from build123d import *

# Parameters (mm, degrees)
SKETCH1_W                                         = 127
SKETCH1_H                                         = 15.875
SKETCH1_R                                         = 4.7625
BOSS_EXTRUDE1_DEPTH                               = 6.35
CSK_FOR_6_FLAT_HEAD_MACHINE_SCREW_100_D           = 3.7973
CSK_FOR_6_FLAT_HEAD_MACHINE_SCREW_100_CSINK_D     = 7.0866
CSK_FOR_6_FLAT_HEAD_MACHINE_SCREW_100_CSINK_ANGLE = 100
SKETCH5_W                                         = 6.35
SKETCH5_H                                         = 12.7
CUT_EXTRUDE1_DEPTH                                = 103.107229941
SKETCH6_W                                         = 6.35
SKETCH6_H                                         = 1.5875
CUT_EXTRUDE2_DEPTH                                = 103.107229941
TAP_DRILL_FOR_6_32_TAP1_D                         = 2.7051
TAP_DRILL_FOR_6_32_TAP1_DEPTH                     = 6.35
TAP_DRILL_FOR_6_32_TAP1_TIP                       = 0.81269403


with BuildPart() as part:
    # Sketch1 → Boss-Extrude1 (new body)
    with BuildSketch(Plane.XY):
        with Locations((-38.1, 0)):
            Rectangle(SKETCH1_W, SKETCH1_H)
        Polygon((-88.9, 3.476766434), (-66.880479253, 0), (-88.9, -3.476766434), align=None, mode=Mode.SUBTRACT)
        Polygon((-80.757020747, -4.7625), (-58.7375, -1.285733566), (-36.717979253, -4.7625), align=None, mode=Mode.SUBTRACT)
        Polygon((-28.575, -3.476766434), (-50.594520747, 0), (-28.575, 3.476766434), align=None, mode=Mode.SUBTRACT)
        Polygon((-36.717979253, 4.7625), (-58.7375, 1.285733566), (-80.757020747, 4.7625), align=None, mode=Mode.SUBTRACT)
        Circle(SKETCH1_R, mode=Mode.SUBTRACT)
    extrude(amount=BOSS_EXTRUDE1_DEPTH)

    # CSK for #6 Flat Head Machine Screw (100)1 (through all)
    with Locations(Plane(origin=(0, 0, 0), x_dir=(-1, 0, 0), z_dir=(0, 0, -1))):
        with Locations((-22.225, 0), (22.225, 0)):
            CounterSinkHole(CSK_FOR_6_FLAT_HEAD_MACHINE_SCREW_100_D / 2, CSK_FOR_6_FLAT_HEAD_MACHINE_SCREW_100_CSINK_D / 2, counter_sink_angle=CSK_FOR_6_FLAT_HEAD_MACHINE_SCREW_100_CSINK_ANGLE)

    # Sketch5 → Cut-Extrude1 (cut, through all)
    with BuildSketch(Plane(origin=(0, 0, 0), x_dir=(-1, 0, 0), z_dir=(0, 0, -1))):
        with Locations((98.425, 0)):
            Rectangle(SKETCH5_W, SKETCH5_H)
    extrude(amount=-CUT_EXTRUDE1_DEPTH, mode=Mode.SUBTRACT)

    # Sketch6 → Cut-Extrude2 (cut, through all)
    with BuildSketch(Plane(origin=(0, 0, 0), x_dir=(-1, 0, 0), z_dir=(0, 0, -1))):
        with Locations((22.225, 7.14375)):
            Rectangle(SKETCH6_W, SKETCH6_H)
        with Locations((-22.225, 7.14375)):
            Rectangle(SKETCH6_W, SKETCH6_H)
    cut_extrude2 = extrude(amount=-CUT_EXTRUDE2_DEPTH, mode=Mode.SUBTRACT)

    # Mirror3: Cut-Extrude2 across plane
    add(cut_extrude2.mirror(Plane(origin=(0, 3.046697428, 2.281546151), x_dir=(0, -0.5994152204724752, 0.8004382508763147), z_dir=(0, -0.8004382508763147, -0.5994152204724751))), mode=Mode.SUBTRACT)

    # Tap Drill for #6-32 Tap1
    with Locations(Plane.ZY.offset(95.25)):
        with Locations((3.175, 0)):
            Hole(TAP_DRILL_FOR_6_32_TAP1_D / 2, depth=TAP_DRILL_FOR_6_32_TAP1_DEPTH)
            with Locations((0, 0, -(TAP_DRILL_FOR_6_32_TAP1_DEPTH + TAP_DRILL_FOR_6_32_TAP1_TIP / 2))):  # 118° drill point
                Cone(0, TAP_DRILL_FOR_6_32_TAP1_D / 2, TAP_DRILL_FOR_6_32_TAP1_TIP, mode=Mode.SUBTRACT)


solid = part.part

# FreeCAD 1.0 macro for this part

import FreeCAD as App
import Part
import Sketcher

V = App.Vector
Q = App.Units.Quantity

doc = App.newDocument("Part")
params = doc.addObject("Spreadsheet::Sheet", "Params")
for row, (alias, value) in enumerate([
    ("sketch1_width", "5 in"),
    ("sketch1_diameter", "0.375 in"),
    ("sketch1_height", "0.625 in"),
    ("pad1_length", "0.25 in"),
    ("hole_diameter", "0.1495 in"),
    ("hole_csink_diameter", "0.279 in"),
    ("sketch3_height", "0.5 in"),
    ("sketch3_width", "0.25 in"),
    ("sketch4_width", "0.25 in"),
    ("sketch4_height", "0.0625 in"),
    ("hole2_diameter", "0.1065 in"),
    ("hole2_depth", "0.25 in"),
], start=1):
    params.set(f"A{row}", alias)
    params.set(f"B{row}", "=" + value)
    params.setAlias(f"B{row}", alias)

body = doc.addObject("PartDesign::Body", "Body")

sketch1 = body.newObject("Sketcher::SketchObject", "Sketch")
sketch1.AttachmentSupport = (doc.getObject("XY_Plane"), [""])
sketch1.MapMode = "FlatFace"
sketch1.addGeometry(Part.LineSegment(V(-101.6, 7.9, 0), V(-101.6, -7.9, 0)), False)
sketch1.addGeometry(Part.LineSegment(V(-101.6, -7.9, 0), V(25.4, -7.9, 0)), False)
sketch1.addGeometry(Part.LineSegment(V(25.4, -7.9, 0), V(25.4, 7.9, 0)), False)
sketch1.addGeometry(Part.LineSegment(V(25.4, 7.9, 0), V(-101.6, 7.9, 0)), False)
sketch1.addGeometry(Part.LineSegment(V(-36.7, -4.8, 0), V(-80.8, -4.8, 0)), False)
sketch1.addGeometry(Part.LineSegment(V(-80.8, -4.8, 0), V(-58.7, -1.3, 0)), False)
sketch1.addGeometry(Part.LineSegment(V(-58.7, -1.3, 0), V(-36.7, -4.8, 0)), False)
sketch1.addGeometry(Part.LineSegment(V(-88.9, -3.5, 0), V(-88.9, 3.5, 0)), False)
sketch1.addGeometry(Part.LineSegment(V(-88.9, 3.5, 0), V(-66.9, 0, 0)), False)
sketch1.addGeometry(Part.LineSegment(V(-66.9, 0, 0), V(-88.9, -3.5, 0)), False)
sketch1.addGeometry(Part.LineSegment(V(-80.8, 4.8, 0), V(-36.7, 4.8, 0)), False)
sketch1.addGeometry(Part.LineSegment(V(-36.7, 4.8, 0), V(-58.7, 1.3, 0)), False)
sketch1.addGeometry(Part.LineSegment(V(-58.7, 1.3, 0), V(-80.8, 4.8, 0)), False)
sketch1.addGeometry(Part.LineSegment(V(-28.6, 3.5, 0), V(-28.6, -3.5, 0)), False)
sketch1.addGeometry(Part.LineSegment(V(-28.6, -3.5, 0), V(-50.6, 0, 0)), False)
sketch1.addGeometry(Part.LineSegment(V(-50.6, 0, 0), V(-28.6, 3.5, 0)), False)
sketch1.addGeometry(Part.Circle(V(0, 0, 0), V(0, 0, 1), 4.8), False)
sketch1.addConstraint(Sketcher.Constraint("Coincident", 0, 2, 1, 1))
sketch1.addConstraint(Sketcher.Constraint("Coincident", 1, 2, 2, 1))
sketch1.addConstraint(Sketcher.Constraint("Coincident", 2, 2, 3, 1))
sketch1.addConstraint(Sketcher.Constraint("Coincident", 3, 2, 0, 1))
sketch1.addConstraint(Sketcher.Constraint("Coincident", 4, 2, 5, 1))
sketch1.addConstraint(Sketcher.Constraint("Coincident", 5, 2, 6, 1))
sketch1.addConstraint(Sketcher.Constraint("Coincident", 6, 2, 4, 1))
sketch1.addConstraint(Sketcher.Constraint("Coincident", 7, 2, 8, 1))
sketch1.addConstraint(Sketcher.Constraint("Coincident", 8, 2, 9, 1))
sketch1.addConstraint(Sketcher.Constraint("Coincident", 9, 2, 7, 1))
sketch1.addConstraint(Sketcher.Constraint("Coincident", 10, 2, 11, 1))
sketch1.addConstraint(Sketcher.Constraint("Coincident", 11, 2, 12, 1))
sketch1.addConstraint(Sketcher.Constraint("Coincident", 12, 2, 10, 1))
sketch1.addConstraint(Sketcher.Constraint("Coincident", 13, 2, 14, 1))
sketch1.addConstraint(Sketcher.Constraint("Coincident", 14, 2, 15, 1))
sketch1.addConstraint(Sketcher.Constraint("Coincident", 15, 2, 13, 1))
sketch1.addConstraint(Sketcher.Constraint("Vertical", 0))
sketch1.addConstraint(Sketcher.Constraint("Horizontal", 1))
sketch1.addConstraint(Sketcher.Constraint("Vertical", 2))
sketch1.addConstraint(Sketcher.Constraint("Horizontal", 3))
sketch1.addConstraint(Sketcher.Constraint("Horizontal", 4))
sketch1.addConstraint(Sketcher.Constraint("Vertical", 7))
sketch1.addConstraint(Sketcher.Constraint("Horizontal", 10))
sketch1.addConstraint(Sketcher.Constraint("Vertical", 13))
sketch1.addConstraint(Sketcher.Constraint("Coincident", 16, 3, -1, 1))
sketch1.addConstraint(Sketcher.Constraint("Symmetric", 6, 2, 10, 2, -1))
sketch1.addConstraint(Sketcher.Constraint("Symmetric", 5, 2, 11, 2, -1))
sketch1.addConstraint(Sketcher.Constraint("PointOnObject", 8, 2, -1))
sketch1.addConstraint(Sketcher.Constraint("PointOnObject", 14, 2, -1))
sketch1.addConstraint(Sketcher.Constraint("Parallel", 6, 8))
sketch1.addConstraint(Sketcher.Constraint("Parallel", 5, 9))
sketch1.addConstraint(Sketcher.Constraint("Parallel", 9, 11))
sketch1.addConstraint(Sketcher.Constraint("Parallel", 8, 12))
sketch1.addConstraint(Sketcher.Constraint("Parallel", 12, 14))
sketch1.addConstraint(Sketcher.Constraint("Parallel", 11, 15))
sketch1.addConstraint(Sketcher.Constraint("Horizontal", 9, 2, 13, 2))
sketch1.addConstraint(Sketcher.Constraint("Equal", 6, 8))
sketch1.addConstraint(Sketcher.Constraint("DistanceX", 1, 1, 1, 2, Q("5 in")))
sketch1.addConstraint(Sketcher.Constraint("Diameter", 16, Q("0.375 in")))
sketch1.addConstraint(Sketcher.Constraint("DistanceX", 0, 2, -1, 1, Q("4 in")))
sketch1.addConstraint(Sketcher.Constraint("DistanceX", 7, 2, -1, 1, Q("3.5 in")))
sketch1.addConstraint(Sketcher.Constraint("DistanceY", 4, 2, 3, 2, Q("0.5 in")))
sketch1.addConstraint(Sketcher.Constraint("DistanceY", 0, 2, 0, 1, Q("0.625 in")))
sketch1.addConstraint(Sketcher.Constraint("DistanceY", 0, 2, -1, 1, Q("0.3125 in")))
sketch1.addConstraint(Sketcher.Constraint("DistanceX", 5, 2, -1, 1, Q("2.3125 in")))
sketch1.addConstraint(Sketcher.Constraint("DistanceX", 13, 2, -1, 1, Q("1.125 in")))
sketch1.addConstraint(Sketcher.Constraint("DistanceX", 4, 2, 4, 1, Q("44.039041 mm")))
sketch1.addConstraint(Sketcher.Constraint("DistanceY", 7, 1, 7, 2, Q("6.953533 mm")))
sketch1.setExpression("Constraints[37]", "Params.sketch1_width")
sketch1.setExpression("Constraints[38]", "Params.sketch1_diameter")
sketch1.setExpression("Constraints[42]", "Params.sketch1_height")
pad1 = body.newObject("PartDesign::Pad", "Pad")
pad1.Profile = sketch1
pad1.setExpression("Length", "Params.pad1_length")

sketch2 = body.newObject("Sketcher::SketchObject", "Sketch001")
sketch2.AttachmentSupport = (doc.getObject("XY_Plane"), [""])
sketch2.MapMode = "FlatFace"
sketch2.addGeometry(Part.Circle(V(22.2, 0, 0), V(0, 0, 1), 1.9), False)
sketch2.addGeometry(Part.Circle(V(-22.2, 0, 0), V(0, 0, 1), 1.9), False)
sketch2.addConstraint(Sketcher.Constraint("Equal", 0, 1))
sketch2.addConstraint(Sketcher.Constraint("Symmetric", 0, 3, 1, 3, -1, 1))
sketch2.addConstraint(Sketcher.Constraint("PointOnObject", 0, 3, -1))
sketch2.addConstraint(Sketcher.Constraint("Diameter", 0, Q("0.1495 in")))
sketch2.addConstraint(Sketcher.Constraint("DistanceX", 1, 3, 0, 3, Q("1.75 in")))
doc.recompute()
hole = body.newObject("PartDesign::Hole", "Hole")
hole.Profile = sketch2
hole.ThreadType = "None"
hole.setExpression("Diameter", "Params.hole_diameter")
hole.DepthType = "ThroughAll"
hole.HoleCutType = "Countersink"
hole.setExpression("HoleCutDiameter", "Params.hole_csink_diameter")
hole.HoleCutCountersinkAngle = 100
hole.Reversed = True

sketch3 = body.newObject("Sketcher::SketchObject", "Sketch002")
sketch3.AttachmentSupport = (doc.getObject("XY_Plane"), [""])
sketch3.MapMode = "FlatFace"
sketch3.addGeometry(Part.LineSegment(V(-95, 6, 0), V(-95, -6, 0)), False)
sketch3.addGeometry(Part.LineSegment(V(-95, -6, 0), V(-102, -6, 0)), False)
sketch3.addGeometry(Part.LineSegment(V(-102, -6, 0), V(-102, 6, 0)), False)
sketch3.addGeometry(Part.LineSegment(V(-102, 6, 0), V(-95, 6, 0)), False)
sketch3.addConstraint(Sketcher.Constraint("Coincident", 0, 2, 1, 1))
sketch3.addConstraint(Sketcher.Constraint("Coincident", 1, 2, 2, 1))
sketch3.addConstraint(Sketcher.Constraint("Coincident", 2, 2, 3, 1))
sketch3.addConstraint(Sketcher.Constraint("Coincident", 3, 2, 0, 1))
sketch3.addConstraint(Sketcher.Constraint("Vertical", 0))
sketch3.addConstraint(Sketcher.Constraint("Horizontal", 1))
sketch3.addConstraint(Sketcher.Constraint("Vertical", 2))
sketch3.addConstraint(Sketcher.Constraint("Horizontal", 3))
sketch3.addConstraint(Sketcher.Constraint("DistanceY", 0, 2, 0, 1, Q("0.5 in")))
sketch3.addConstraint(Sketcher.Constraint("DistanceX", 1, 2, -1, 1, Q("4 in")))
sketch3.addConstraint(Sketcher.Constraint("DistanceX", 1, 2, 1, 1, Q("0.25 in")))
sketch3.addConstraint(Sketcher.Constraint("DistanceY", 0, 2, -1, 1, Q("0.25 in")))
sketch3.setExpression("Constraints[8]", "Params.sketch3_height")
sketch3.setExpression("Constraints[10]", "Params.sketch3_width")
pocket1 = body.newObject("PartDesign::Pocket", "Pocket")
pocket1.Profile = sketch3
pocket1.Type = "ThroughAll"
pocket1.Reversed = True

sketch4 = body.newObject("Sketcher::SketchObject", "Sketch003")
sketch4.AttachmentSupport = (doc.getObject("XY_Plane"), [""])
sketch4.MapMode = "FlatFace"
sketch4.addGeometry(Part.LineSegment(V(-19.1, 7.9, 0), V(-19.1, 6.3, 0)), False)
sketch4.addGeometry(Part.LineSegment(V(-19.1, 6.3, 0), V(-25.4, 6.3, 0)), False)
sketch4.addGeometry(Part.LineSegment(V(-25.4, 6.3, 0), V(-25.4, 7.9, 0)), False)
sketch4.addGeometry(Part.LineSegment(V(-25.4, 7.9, 0), V(-19.1, 7.9, 0)), False)
sketch4.addGeometry(Part.LineSegment(V(25.4, 7.9, 0), V(25.4, 6.3, 0)), False)
sketch4.addGeometry(Part.LineSegment(V(25.4, 6.3, 0), V(19.1, 6.3, 0)), False)
sketch4.addGeometry(Part.LineSegment(V(19.1, 6.3, 0), V(19.1, 7.9, 0)), False)
sketch4.addGeometry(Part.LineSegment(V(19.1, 7.9, 0), V(25.4, 7.9, 0)), False)
sketch4.addConstraint(Sketcher.Constraint("Coincident", 0, 2, 1, 1))
sketch4.addConstraint(Sketcher.Constraint("Coincident", 1, 2, 2, 1))
sketch4.addConstraint(Sketcher.Constraint("Coincident", 2, 2, 3, 1))
sketch4.addConstraint(Sketcher.Constraint("Coincident", 3, 2, 0, 1))
sketch4.addConstraint(Sketcher.Constraint("Coincident", 4, 2, 5, 1))
sketch4.addConstraint(Sketcher.Constraint("Coincident", 5, 2, 6, 1))
sketch4.addConstraint(Sketcher.Constraint("Coincident", 6, 2, 7, 1))
sketch4.addConstraint(Sketcher.Constraint("Coincident", 7, 2, 4, 1))
sketch4.addConstraint(Sketcher.Constraint("Vertical", 0))
sketch4.addConstraint(Sketcher.Constraint("Horizontal", 1))
sketch4.addConstraint(Sketcher.Constraint("Vertical", 2))
sketch4.addConstraint(Sketcher.Constraint("Horizontal", 3))
sketch4.addConstraint(Sketcher.Constraint("Vertical", 4))
sketch4.addConstraint(Sketcher.Constraint("Horizontal", 5))
sketch4.addConstraint(Sketcher.Constraint("Vertical", 6))
sketch4.addConstraint(Sketcher.Constraint("Horizontal", 7))
sketch4.addConstraint(Sketcher.Constraint("Symmetric", 1, 2, 4, 2, -2))
sketch4.addConstraint(Sketcher.Constraint("Symmetric", 3, 2, 6, 2, -2))
sketch4.addConstraint(Sketcher.Constraint("DistanceX", 1, 2, -1, 1, Q("1 in")))
sketch4.addConstraint(Sketcher.Constraint("DistanceX", 1, 2, 1, 1, Q("0.25 in")))
sketch4.addConstraint(Sketcher.Constraint("DistanceY", 0, 2, 0, 1, Q("0.0625 in")))
sketch4.addConstraint(Sketcher.Constraint("DistanceY", -1, 1, 0, 2, Q("0.25 in")))
sketch4.setExpression("Constraints[19]", "Params.sketch4_width")
sketch4.setExpression("Constraints[20]", "Params.sketch4_height")
pocket2 = body.newObject("PartDesign::Pocket", "Pocket001")
pocket2.Profile = sketch4
pocket2.Type = "ThroughAll"
pocket2.Reversed = True
doc.recompute()

datumplane = body.newObject("PartDesign::Plane", "DatumPlane")
datumplane.Placement = App.Placement(V(0, 3.046697, 2.281546), App.Rotation(V(0, -0.59941522, 0.800438251), V(-1, 0, 0), V(0, -0.800438251, -0.59941522), "ZXY"))
mirrored = body.newObject("PartDesign::Mirrored", "Mirrored")
mirrored.Originals = [pocket2]
mirrored.MirrorPlane = (datumplane, [""])
body.Tip = mirrored

sketch5 = body.newObject("Sketcher::SketchObject", "Sketch004")
sketch5.AttachmentSupport = (doc.getObject("YZ_Plane"), [""])
sketch5.MapMode = "FlatFace"
sketch5.AttachmentOffset = App.Placement(V(0, 0, -3.75 * 25.4), App.Rotation())
sketch5.addGeometry(Part.Circle(V(0, 3.2, 0), V(0, 0, 1), 1.4), False)
sketch5.addConstraint(Sketcher.Constraint("PointOnObject", 0, 3, -2))
sketch5.addConstraint(Sketcher.Constraint("Diameter", 0, Q("0.1065 in")))
sketch5.addConstraint(Sketcher.Constraint("DistanceY", -1, 1, 0, 3, Q("0.125 in")))
doc.recompute()
hole2 = body.newObject("PartDesign::Hole", "Hole001")
hole2.Profile = sketch5
hole2.ThreadType = "None"
hole2.setExpression("Diameter", "Params.hole2_diameter")
hole2.DepthType = "Dimension"
hole2.setExpression("Depth", "Params.hole2_depth")
hole2.DrillPoint = "Angled"
hole2.DrillPointAngle = 118
hole2.Reversed = True

doc.recompute()
